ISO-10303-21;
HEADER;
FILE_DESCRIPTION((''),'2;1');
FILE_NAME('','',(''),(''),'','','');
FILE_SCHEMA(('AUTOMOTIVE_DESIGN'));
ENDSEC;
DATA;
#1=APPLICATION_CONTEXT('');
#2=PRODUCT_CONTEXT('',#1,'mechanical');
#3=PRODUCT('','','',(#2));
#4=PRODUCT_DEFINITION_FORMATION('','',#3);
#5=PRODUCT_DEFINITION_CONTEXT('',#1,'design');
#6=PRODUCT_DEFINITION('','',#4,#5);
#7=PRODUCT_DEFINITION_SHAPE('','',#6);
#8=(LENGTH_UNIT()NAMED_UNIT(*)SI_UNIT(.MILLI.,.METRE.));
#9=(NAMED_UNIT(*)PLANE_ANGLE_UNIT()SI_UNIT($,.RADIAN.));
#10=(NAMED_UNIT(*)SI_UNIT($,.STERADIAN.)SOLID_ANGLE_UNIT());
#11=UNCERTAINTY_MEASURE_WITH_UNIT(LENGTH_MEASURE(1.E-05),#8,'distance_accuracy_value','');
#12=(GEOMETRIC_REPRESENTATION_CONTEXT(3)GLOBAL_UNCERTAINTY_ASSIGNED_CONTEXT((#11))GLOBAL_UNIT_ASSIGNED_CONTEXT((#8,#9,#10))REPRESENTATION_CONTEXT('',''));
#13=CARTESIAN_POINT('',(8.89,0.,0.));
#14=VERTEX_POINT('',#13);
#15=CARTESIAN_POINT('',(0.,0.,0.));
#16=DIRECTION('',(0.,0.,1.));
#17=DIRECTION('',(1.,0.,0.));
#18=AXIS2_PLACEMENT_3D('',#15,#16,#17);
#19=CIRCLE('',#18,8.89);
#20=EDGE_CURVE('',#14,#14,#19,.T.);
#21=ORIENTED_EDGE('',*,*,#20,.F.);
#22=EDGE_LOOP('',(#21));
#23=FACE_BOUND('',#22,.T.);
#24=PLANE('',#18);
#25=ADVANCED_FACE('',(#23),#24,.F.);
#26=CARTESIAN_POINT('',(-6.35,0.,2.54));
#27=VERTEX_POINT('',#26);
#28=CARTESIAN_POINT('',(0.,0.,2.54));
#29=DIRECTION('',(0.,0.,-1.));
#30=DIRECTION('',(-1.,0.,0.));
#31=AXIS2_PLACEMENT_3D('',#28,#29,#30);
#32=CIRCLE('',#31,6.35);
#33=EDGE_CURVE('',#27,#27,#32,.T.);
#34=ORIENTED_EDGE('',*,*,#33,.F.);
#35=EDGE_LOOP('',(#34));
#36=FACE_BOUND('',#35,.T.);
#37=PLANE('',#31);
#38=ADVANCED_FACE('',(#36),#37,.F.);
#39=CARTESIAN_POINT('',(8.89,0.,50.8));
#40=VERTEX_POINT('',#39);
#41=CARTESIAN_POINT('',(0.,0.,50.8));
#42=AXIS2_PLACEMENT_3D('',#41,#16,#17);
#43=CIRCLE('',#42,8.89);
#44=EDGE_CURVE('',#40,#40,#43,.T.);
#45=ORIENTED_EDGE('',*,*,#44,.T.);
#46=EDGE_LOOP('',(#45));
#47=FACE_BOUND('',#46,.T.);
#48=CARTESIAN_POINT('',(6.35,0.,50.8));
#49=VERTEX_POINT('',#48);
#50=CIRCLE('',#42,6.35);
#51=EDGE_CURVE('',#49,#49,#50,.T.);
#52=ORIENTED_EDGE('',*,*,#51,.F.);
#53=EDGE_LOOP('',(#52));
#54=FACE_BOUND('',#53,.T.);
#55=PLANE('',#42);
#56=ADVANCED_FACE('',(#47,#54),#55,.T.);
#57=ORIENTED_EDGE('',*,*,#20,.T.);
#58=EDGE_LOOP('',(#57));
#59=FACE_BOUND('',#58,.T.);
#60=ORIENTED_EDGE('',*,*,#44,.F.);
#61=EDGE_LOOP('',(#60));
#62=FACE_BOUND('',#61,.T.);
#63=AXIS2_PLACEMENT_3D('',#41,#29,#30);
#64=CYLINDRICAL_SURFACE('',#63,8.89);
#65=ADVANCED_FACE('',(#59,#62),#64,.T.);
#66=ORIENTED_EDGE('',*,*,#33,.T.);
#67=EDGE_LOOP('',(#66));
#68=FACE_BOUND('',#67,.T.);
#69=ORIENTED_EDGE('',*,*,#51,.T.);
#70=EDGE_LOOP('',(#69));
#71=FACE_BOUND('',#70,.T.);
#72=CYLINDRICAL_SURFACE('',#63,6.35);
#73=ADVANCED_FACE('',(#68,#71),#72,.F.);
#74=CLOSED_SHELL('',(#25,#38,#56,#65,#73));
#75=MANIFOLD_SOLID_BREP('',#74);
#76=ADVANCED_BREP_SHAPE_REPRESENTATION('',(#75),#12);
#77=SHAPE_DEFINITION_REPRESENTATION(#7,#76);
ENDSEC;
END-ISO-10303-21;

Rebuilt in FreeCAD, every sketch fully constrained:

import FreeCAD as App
import Part
import Sketcher
Q = App.Units.Quantity

doc = App.newDocument("Part")
body = doc.addObject("PartDesign::Body", "Body")

# Sketch on XY plane
sketch1 = body.newObject("Sketcher::SketchObject", "Sketch")
sketch1.AttachmentSupport = (doc.getObject("XY_Plane"), [""])
sketch1.MapMode = "FlatFace"
sketch1.addGeometry([
    Part.Circle(App.Vector(0, 0, 0), App.Vector(0, 0, 1), 9),
    Part.Circle(App.Vector(0, 0, 0), App.Vector(0, 0, 1), 6),
], False)
sketch1.addConstraint([
    Sketcher.Constraint("Coincident", 0, 3, -1, 1),
    Sketcher.Constraint("Coincident", 1, 3, -1, 1),
    Sketcher.Constraint("Diameter", 0, Q("0.7 in")),
    Sketcher.Constraint("Diameter", 1, Q("0.5 in")),
])
pad1 = body.newObject("PartDesign::Pad", "Pad")
pad1.Profile = sketch1
pad1.Length = Q("2 in")

# Sketch on XY plane
sketch2 = body.newObject("Sketcher::SketchObject", "Sketch001")
sketch2.AttachmentSupport = (doc.getObject("XY_Plane"), [""])
sketch2.MapMode = "FlatFace"
sketch2.addGeometry(Part.Circle(App.Vector(0, 0, 0), App.Vector(0, 0, 1), 6), False)
sketch2.addConstraint([
    Sketcher.Constraint("Coincident", 0, 3, -1, 1),
    Sketcher.Constraint("Diameter", 0, Q("0.5 in")),
])
pad2 = body.newObject("PartDesign::Pad", "Pad001")
pad2.Profile = sketch2
pad2.Length = Q("0.1 in")

doc.recompute()
